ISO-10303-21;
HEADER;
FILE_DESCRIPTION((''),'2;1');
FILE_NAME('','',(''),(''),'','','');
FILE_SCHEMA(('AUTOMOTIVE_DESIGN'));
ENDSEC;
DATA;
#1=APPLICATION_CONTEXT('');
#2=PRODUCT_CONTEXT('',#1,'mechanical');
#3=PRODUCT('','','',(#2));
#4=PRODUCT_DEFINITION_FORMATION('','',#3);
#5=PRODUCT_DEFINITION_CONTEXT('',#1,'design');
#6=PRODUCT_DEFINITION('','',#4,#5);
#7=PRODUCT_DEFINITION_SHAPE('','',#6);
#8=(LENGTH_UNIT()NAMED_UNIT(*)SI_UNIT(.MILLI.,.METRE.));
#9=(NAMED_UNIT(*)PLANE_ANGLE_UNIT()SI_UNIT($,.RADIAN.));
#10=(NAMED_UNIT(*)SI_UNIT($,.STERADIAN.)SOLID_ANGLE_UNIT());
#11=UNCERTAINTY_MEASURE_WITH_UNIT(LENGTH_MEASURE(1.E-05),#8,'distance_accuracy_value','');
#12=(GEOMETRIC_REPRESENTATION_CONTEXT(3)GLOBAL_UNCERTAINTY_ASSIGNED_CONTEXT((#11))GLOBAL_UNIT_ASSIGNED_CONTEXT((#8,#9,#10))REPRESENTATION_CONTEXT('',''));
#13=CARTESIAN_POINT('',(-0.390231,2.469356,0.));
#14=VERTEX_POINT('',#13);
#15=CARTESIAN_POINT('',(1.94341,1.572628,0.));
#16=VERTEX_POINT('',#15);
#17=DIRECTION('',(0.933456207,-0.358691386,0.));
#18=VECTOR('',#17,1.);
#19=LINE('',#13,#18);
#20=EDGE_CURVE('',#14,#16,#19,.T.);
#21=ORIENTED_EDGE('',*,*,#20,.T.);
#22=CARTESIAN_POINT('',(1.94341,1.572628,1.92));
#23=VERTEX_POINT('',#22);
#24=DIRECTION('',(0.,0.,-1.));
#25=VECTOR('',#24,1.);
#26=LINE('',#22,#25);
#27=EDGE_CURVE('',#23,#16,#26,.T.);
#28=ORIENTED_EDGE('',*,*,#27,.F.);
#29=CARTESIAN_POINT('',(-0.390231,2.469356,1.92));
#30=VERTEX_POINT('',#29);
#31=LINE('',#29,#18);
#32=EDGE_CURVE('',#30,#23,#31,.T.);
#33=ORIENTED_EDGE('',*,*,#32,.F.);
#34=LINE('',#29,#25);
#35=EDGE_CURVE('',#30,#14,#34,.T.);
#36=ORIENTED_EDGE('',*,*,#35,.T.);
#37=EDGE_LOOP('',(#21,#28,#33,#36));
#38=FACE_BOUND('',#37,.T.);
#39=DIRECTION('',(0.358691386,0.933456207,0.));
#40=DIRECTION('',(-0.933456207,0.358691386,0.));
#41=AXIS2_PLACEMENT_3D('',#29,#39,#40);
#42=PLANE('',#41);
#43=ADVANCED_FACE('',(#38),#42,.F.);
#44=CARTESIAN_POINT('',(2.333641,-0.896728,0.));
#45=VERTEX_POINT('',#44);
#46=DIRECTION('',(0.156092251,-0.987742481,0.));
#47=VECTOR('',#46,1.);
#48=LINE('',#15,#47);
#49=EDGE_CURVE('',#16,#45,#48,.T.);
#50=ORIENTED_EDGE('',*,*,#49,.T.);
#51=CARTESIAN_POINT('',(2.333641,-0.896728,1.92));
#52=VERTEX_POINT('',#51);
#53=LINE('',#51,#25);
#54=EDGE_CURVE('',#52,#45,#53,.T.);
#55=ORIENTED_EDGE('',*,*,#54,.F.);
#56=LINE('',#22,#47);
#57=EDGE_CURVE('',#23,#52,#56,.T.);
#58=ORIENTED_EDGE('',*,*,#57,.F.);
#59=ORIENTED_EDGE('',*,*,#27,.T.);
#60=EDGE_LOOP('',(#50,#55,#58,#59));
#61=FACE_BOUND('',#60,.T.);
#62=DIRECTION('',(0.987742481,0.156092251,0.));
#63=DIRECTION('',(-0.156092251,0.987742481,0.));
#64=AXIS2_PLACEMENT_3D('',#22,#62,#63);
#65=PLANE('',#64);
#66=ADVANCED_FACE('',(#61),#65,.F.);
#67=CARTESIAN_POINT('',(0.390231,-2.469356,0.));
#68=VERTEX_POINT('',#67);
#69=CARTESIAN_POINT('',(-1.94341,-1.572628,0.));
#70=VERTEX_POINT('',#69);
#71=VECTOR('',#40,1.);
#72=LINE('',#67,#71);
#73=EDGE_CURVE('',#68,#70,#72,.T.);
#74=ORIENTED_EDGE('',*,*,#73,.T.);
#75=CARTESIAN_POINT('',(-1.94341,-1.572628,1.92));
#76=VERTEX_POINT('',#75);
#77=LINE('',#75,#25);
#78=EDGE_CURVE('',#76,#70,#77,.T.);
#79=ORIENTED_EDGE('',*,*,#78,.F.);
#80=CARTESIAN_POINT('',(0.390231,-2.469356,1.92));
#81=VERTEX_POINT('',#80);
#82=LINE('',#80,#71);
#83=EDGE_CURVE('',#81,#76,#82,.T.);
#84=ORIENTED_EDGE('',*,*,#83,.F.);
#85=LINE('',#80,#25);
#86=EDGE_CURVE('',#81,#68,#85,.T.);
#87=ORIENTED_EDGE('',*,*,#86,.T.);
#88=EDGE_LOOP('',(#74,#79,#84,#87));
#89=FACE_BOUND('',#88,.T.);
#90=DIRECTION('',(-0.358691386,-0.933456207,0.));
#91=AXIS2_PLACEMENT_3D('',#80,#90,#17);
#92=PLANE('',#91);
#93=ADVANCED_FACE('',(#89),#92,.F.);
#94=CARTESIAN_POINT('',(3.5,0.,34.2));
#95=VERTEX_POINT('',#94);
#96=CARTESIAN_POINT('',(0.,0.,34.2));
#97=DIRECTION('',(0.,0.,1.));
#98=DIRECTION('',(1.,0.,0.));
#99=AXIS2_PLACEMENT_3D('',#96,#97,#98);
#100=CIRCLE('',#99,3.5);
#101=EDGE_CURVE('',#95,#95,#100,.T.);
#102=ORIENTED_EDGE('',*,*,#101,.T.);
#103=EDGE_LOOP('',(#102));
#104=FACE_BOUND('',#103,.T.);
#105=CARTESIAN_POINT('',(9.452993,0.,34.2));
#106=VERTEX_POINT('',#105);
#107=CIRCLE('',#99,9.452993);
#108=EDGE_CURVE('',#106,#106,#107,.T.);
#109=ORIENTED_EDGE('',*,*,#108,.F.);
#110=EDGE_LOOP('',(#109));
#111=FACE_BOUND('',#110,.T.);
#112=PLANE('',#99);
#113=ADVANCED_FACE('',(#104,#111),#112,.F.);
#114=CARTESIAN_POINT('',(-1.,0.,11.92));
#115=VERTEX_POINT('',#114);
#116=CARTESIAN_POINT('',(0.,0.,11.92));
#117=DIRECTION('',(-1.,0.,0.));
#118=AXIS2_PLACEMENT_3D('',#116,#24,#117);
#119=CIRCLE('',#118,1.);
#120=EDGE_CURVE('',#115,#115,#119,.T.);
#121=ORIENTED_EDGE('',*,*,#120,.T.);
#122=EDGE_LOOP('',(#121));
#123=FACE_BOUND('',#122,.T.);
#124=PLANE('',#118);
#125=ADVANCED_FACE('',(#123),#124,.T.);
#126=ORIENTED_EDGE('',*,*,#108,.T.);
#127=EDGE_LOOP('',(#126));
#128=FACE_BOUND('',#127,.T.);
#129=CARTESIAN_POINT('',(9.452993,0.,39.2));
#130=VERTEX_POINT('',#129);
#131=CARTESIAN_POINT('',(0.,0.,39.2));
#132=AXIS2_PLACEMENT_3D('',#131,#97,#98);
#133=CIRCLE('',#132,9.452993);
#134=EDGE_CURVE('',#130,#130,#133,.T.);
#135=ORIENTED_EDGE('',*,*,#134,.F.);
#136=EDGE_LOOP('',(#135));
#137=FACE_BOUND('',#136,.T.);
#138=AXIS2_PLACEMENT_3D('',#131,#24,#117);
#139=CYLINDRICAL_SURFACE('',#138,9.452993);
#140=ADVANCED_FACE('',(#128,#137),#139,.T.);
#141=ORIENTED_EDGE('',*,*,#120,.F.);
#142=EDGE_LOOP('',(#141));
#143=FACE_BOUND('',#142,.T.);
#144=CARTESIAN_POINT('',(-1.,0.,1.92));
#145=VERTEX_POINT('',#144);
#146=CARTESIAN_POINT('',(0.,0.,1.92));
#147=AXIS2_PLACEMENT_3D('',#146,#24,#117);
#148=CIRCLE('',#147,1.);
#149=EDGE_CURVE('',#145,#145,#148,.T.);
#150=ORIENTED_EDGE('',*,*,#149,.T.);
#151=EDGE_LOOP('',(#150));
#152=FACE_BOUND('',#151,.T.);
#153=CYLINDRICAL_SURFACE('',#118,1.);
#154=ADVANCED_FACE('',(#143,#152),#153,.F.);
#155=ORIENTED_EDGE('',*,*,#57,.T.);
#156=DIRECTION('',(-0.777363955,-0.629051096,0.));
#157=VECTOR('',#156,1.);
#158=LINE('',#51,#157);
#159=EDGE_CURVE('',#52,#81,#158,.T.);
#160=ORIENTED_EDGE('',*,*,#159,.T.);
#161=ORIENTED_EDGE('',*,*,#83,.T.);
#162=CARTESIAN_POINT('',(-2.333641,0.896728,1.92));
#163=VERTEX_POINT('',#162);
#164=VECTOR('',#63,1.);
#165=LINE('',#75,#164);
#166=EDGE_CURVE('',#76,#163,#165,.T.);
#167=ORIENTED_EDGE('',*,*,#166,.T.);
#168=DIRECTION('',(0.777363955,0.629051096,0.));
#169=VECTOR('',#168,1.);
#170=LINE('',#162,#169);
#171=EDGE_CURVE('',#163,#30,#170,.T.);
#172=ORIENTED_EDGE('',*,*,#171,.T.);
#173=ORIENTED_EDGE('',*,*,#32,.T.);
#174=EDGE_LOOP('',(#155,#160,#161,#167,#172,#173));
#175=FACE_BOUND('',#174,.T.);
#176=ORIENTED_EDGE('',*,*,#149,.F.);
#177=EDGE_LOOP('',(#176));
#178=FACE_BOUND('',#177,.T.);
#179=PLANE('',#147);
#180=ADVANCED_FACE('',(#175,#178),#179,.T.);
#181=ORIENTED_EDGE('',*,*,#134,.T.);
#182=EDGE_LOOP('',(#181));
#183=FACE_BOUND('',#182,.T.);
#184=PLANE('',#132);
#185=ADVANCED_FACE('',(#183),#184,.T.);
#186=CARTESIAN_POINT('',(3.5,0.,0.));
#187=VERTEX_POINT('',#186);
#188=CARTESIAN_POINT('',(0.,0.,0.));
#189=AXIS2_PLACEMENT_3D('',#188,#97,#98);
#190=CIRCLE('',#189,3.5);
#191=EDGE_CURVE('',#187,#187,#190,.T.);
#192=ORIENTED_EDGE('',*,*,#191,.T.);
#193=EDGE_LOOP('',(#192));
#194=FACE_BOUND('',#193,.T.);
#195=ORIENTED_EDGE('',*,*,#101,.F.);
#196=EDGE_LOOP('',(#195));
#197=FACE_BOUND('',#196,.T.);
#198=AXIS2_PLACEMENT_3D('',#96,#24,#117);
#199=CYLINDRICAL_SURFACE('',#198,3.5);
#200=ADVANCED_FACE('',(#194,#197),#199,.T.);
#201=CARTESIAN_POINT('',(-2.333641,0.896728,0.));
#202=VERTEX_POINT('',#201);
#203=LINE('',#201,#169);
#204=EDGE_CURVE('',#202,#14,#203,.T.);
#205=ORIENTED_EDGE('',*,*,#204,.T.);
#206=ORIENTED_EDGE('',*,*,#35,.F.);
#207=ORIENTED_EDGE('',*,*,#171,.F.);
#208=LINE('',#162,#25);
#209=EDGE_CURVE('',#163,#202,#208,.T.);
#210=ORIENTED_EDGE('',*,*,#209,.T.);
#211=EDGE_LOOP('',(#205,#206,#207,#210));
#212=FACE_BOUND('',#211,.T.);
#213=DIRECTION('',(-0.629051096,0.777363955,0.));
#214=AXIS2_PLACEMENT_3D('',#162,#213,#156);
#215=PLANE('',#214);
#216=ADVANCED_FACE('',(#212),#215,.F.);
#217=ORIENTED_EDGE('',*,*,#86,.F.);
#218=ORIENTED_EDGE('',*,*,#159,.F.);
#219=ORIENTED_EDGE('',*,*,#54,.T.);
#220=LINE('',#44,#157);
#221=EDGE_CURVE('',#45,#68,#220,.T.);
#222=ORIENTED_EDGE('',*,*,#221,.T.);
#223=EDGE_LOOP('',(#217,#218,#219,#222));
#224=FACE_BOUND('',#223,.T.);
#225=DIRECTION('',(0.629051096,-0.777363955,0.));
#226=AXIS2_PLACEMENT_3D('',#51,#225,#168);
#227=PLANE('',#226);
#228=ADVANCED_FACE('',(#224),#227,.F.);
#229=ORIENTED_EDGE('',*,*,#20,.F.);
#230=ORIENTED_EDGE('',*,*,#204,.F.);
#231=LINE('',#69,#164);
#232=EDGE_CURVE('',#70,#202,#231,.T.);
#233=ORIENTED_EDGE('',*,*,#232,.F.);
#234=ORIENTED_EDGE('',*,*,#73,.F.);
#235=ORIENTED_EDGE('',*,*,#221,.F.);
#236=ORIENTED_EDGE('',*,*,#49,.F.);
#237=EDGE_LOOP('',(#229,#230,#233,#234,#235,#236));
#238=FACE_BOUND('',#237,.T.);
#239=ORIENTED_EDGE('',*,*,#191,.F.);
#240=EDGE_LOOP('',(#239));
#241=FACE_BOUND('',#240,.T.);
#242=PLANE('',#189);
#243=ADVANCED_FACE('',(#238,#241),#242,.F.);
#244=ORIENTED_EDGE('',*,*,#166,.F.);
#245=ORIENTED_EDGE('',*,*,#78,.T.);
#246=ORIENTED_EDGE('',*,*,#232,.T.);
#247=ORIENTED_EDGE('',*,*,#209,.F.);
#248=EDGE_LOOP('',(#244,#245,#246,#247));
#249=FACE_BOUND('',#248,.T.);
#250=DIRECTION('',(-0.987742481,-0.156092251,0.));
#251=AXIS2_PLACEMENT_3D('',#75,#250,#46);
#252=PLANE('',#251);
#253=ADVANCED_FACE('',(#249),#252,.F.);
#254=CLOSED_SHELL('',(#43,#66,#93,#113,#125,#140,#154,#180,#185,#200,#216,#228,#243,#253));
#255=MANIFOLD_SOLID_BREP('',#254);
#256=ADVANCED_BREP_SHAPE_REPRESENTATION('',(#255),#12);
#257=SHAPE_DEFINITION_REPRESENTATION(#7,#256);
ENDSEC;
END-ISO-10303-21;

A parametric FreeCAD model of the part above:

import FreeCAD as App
import Part
import Sketcher

V = App.Vector
Q = App.Units.Quantity


def add_polygon(sketch, points):
    """Adds a closed chain of lines whose ends are joined by coincident constraints."""
    first, n = sketch.GeometryCount, len(points)
    for a, b in zip(points, points[1:] + points[:1]):
        sketch.addGeometry(Part.LineSegment(App.Vector(*a, 0), App.Vector(*b, 0)), False)
    for i in range(n):
        sketch.addConstraint(Sketcher.Constraint("Coincident", first + i, 2, first + (i + 1) % n, 1))

doc = App.newDocument("Part")
body = doc.addObject("PartDesign::Body", "Body")

# Sketch on XY plane
sketch1 = doc.addObject("Sketcher::SketchObject", "Sketch")
body.addObject(sketch1)
sketch1.AttachmentSupport = (doc.XY_Plane, [""])
sketch1.MapMode = "FlatFace"
sketch1.addGeometry(Part.Circle(V(0, 0, 0), V(0, 0, 1), 3.5), False)
sketch1.addConstraint(Sketcher.Constraint("Coincident", 0, 3, -1, 1))
sketch1.addConstraint(Sketcher.Constraint("Diameter", 0, Q("7 mm")))
pad1 = doc.addObject("PartDesign::Pad", "Pad")
body.addObject(pad1)
pad1.Profile = sketch1
pad1.Length = 34.2

# Sketch on XY plane
sketch2 = doc.addObject("Sketcher::SketchObject", "Sketch001")
body.addObject(sketch2)
sketch2.AttachmentSupport = (doc.XY_Plane, [""])
sketch2.MapMode = "FlatFace"
sketch2.AttachmentOffset = App.Placement(V(0, 0, 34.2), App.Rotation())
sketch2.addGeometry(Part.Circle(V(0, 0, 0), V(0, 0, 1), 9.452993), False)
sketch2.addConstraint(Sketcher.Constraint("Coincident", 0, 3, -1, 1))
sketch2.addConstraint(Sketcher.Constraint("Diameter", 0, Q("18.905986 mm")))
pad2 = doc.addObject("PartDesign::Pad", "Pad001")
body.addObject(pad2)
pad2.Profile = sketch2
pad2.Length = 5

# Sketch on XY plane
sketch3 = doc.addObject("Sketcher::SketchObject", "Sketch002")
body.addObject(sketch3)
sketch3.AttachmentSupport = (doc.XY_Plane, [""])
sketch3.MapMode = "FlatFace"
add_polygon(sketch3, [(1.94341, 1.572628), (2.333641, -0.896728), (0.390231, -2.469356), (-1.94341, -1.572628), (-2.333641, 0.896728), (-0.390231, 2.469356)])  # lines 0-5
sketch3.addConstraint(Sketcher.Constraint("Symmetric", 0, 2, 3, 2, -1, 1))
sketch3.addConstraint(Sketcher.Constraint("Symmetric", 1, 2, 4, 2, -1, 1))
sketch3.addConstraint(Sketcher.Constraint("Symmetric", 2, 2, 5, 2, -1, 1))
sketch3.addConstraint(Sketcher.Constraint("Equal", 0, 1))
sketch3.addConstraint(Sketcher.Constraint("Equal", 1, 2))
sketch3.addConstraint(Sketcher.Constraint("Distance", 0, Q("2.5 mm")))
sketch3.addConstraint(Sketcher.Constraint("DistanceY", 2, 2, 0, 2, Q("0.675899 mm")))
sketch3.addConstraint(Sketcher.Constraint("DistanceX", -1, 1, 0, 2, Q("2.333641 mm")))
sketch3.addConstraint(Sketcher.Constraint("DistanceY", 0, 2, -1, 1, Q("0.896728 mm")))
pocket1 = doc.addObject("PartDesign::Pocket", "Pocket")
body.addObject(pocket1)
pocket1.Profile = sketch3
pocket1.Length = 1.92
pocket1.Reversed = True

# Sketch on XY plane
sketch4 = doc.addObject("Sketcher::SketchObject", "Sketch003")
body.addObject(sketch4)
sketch4.AttachmentSupport = (doc.XY_Plane, [""])
sketch4.MapMode = "FlatFace"
sketch4.AttachmentOffset = App.Placement(V(0, 0, 1.92), App.Rotation())
sketch4.addGeometry(Part.Circle(V(0, 0, 0), V(0, 0, 1), 1), False)
sketch4.addConstraint(Sketcher.Constraint("Coincident", 0, 3, -1, 1))
sketch4.addConstraint(Sketcher.Constraint("Diameter", 0, Q("2 mm")))
pocket2 = doc.addObject("PartDesign::Pocket", "Pocket001")
body.addObject(pocket2)
pocket2.Profile = sketch4
pocket2.Length = 10
pocket2.Reversed = True

doc.recompute()
